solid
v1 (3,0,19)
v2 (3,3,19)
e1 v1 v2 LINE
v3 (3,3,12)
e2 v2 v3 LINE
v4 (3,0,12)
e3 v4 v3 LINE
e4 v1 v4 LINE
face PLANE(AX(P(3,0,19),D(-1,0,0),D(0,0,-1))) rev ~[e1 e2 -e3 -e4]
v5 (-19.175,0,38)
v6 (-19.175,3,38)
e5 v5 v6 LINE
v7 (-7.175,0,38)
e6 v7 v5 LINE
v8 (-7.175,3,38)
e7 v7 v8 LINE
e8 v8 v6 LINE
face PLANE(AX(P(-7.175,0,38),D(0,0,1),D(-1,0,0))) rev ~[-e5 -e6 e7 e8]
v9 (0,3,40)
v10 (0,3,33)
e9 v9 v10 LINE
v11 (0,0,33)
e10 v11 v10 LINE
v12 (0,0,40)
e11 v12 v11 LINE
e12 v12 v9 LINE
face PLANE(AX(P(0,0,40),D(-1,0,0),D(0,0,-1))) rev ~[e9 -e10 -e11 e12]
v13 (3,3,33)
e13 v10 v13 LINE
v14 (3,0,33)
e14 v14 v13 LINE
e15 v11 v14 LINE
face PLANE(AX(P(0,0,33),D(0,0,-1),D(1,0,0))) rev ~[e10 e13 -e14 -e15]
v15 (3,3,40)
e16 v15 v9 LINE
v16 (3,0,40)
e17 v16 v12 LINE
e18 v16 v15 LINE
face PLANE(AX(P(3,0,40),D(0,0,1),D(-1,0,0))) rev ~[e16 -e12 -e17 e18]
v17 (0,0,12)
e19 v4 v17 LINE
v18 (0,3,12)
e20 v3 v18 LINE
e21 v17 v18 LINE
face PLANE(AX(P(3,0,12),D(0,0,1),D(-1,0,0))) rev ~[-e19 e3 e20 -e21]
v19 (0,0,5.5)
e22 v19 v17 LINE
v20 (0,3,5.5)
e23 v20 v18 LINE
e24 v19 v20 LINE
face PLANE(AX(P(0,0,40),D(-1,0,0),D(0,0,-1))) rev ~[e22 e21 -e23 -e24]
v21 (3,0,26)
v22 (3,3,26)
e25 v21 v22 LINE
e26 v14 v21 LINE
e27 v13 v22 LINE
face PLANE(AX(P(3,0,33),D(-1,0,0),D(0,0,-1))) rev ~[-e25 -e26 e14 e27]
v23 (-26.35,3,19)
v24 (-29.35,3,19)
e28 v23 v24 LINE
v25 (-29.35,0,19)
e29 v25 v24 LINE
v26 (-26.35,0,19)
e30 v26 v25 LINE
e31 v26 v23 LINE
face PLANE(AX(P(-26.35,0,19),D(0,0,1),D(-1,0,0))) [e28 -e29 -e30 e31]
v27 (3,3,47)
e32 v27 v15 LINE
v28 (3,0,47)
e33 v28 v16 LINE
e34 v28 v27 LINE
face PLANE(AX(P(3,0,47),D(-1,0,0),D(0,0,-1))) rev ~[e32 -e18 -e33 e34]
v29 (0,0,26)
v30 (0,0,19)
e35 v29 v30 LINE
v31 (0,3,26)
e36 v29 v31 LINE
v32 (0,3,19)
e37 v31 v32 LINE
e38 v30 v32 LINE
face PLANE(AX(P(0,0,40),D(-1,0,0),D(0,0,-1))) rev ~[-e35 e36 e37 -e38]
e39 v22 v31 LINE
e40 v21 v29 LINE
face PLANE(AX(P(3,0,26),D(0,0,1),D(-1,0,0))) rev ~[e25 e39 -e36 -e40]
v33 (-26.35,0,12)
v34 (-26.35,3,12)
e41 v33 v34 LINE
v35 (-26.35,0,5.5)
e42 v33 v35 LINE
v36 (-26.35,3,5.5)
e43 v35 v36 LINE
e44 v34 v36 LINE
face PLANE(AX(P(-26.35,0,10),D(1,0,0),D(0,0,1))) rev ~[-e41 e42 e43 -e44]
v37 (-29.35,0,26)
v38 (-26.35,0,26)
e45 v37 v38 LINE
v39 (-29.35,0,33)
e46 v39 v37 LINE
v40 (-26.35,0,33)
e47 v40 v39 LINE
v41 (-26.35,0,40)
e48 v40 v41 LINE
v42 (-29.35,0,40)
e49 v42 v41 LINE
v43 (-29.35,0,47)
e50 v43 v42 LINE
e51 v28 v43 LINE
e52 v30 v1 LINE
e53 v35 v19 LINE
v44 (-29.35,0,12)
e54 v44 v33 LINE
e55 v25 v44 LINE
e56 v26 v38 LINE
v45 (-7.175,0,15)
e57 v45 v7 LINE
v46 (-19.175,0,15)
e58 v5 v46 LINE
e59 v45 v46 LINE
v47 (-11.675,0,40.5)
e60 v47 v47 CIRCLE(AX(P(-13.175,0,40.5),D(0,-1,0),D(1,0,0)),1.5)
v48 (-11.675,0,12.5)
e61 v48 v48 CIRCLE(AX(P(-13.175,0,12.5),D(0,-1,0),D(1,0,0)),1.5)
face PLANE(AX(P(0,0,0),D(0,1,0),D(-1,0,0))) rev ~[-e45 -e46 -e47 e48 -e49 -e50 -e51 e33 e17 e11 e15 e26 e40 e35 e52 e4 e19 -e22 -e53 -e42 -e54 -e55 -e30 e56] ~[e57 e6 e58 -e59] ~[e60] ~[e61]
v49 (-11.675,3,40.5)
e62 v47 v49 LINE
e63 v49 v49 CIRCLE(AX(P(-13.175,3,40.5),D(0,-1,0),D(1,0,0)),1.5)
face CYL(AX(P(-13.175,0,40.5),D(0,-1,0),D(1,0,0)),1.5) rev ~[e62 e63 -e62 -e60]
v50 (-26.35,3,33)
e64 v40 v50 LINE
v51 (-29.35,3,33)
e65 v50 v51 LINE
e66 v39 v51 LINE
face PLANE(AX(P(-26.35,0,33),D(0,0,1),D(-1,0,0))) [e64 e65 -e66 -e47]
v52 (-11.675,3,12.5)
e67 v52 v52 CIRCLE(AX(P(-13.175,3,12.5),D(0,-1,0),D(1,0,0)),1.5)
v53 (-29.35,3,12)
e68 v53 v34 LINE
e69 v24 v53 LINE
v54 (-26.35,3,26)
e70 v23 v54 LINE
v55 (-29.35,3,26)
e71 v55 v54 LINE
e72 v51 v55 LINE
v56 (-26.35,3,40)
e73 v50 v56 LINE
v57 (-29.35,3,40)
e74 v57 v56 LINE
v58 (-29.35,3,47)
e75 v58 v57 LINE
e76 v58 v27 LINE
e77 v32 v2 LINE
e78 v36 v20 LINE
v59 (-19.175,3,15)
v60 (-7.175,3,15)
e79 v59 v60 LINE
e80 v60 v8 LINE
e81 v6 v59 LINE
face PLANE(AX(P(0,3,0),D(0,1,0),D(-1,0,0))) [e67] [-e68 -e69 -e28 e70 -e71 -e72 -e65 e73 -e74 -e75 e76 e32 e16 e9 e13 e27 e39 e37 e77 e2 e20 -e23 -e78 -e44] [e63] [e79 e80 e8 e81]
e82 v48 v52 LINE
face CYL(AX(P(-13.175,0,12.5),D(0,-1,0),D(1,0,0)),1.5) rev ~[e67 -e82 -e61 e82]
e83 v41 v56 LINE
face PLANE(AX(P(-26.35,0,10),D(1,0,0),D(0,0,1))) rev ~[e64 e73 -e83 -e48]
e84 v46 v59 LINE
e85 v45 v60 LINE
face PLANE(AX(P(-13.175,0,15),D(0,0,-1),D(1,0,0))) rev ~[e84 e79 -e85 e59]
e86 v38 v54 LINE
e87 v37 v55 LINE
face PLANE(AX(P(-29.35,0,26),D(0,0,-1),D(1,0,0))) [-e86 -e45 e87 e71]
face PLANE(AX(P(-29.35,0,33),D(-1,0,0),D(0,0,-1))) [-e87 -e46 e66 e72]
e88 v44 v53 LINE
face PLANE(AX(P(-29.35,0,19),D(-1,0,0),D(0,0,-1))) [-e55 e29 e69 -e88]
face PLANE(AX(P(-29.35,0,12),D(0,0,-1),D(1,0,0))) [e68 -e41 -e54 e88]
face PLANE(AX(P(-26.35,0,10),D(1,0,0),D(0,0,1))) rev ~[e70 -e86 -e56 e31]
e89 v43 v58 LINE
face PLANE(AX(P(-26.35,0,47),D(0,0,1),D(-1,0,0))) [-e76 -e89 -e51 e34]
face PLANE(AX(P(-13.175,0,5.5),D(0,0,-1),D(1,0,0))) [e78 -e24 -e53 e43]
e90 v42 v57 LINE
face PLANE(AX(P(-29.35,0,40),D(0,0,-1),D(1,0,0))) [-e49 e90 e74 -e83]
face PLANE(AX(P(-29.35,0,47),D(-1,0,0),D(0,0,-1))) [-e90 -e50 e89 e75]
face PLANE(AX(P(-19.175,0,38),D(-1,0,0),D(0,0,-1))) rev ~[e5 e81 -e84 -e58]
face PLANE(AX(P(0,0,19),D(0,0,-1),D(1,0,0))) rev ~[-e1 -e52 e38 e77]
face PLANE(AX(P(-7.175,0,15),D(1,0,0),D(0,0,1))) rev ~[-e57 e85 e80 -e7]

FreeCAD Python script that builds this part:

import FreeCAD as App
import Part
import Sketcher
Q = App.Units.Quantity

doc = App.newDocument("Part")
body = doc.addObject("PartDesign::Body", "Body")

# Sketch on XZ plane
sketch1 = doc.addObject("Sketcher::SketchObject", "Sketch")
body.addObject(sketch1)
sketch1.AttachmentSupport = (doc.XZ_Plane, [""])
sketch1.MapMode = "FlatFace"
sketch1.addGeometry(Part.LineSegment(App.Vector(3, 0, 0), App.Vector(-29.35, 0, 0)), False)
sketch1.addGeometry(Part.LineSegment(App.Vector(-29.35, 0, 0), App.Vector(-29.35, 10, 0)), False)
sketch1.addGeometry(Part.LineSegment(App.Vector(-29.35, 10, 0), App.Vector(3, 10, 0)), False)
sketch1.addGeometry(Part.LineSegment(App.Vector(3, 10, 0), App.Vector(3, 0, 0)), False)
sketch1.addConstraint(Sketcher.Constraint("Coincident", 0, 2, 1, 1))
sketch1.addConstraint(Sketcher.Constraint("Coincident", 1, 2, 2, 1))
sketch1.addConstraint(Sketcher.Constraint("Coincident", 2, 2, 3, 1))
sketch1.addConstraint(Sketcher.Constraint("Coincident", 3, 2, 0, 1))
sketch1.addConstraint(Sketcher.Constraint("Horizontal", 0))
sketch1.addConstraint(Sketcher.Constraint("Vertical", 1))
sketch1.addConstraint(Sketcher.Constraint("Horizontal", 2))
sketch1.addConstraint(Sketcher.Constraint("Vertical", 3))
sketch1.addConstraint(Sketcher.Constraint("PointOnObject", 0, 2, -1))
sketch1.addConstraint(Sketcher.Constraint("DistanceY", 1, 1, 1, 2, Q("10 mm")))
sketch1.addConstraint(Sketcher.Constraint("DistanceX", -1, 1, 2, 2, Q("3 mm")))
sketch1.addConstraint(Sketcher.Constraint("DistanceX", 0, 2, 0, 1, Q("32.35 mm")))
pad1 = doc.addObject("PartDesign::Pad", "Pad")
body.addObject(pad1)
pad1.Profile = sketch1
pad1.Length = 3
pad1.Reversed = True

# Sketch on XZ plane
sketch2 = doc.addObject("Sketcher::SketchObject", "Sketch001")
body.addObject(sketch2)
sketch2.AttachmentSupport = (doc.XZ_Plane, [""])
sketch2.MapMode = "FlatFace"
sketch2.addGeometry(Part.LineSegment(App.Vector(-26.35, 40, 0), App.Vector(-26.35, 10, 0)), False)
sketch2.addGeometry(Part.LineSegment(App.Vector(-26.35, 10, 0), App.Vector(0, 10, 0)), False)
sketch2.addGeometry(Part.LineSegment(App.Vector(0, 10, 0), App.Vector(0, 40, 0)), False)
sketch2.addGeometry(Part.LineSegment(App.Vector(0, 40, 0), App.Vector(3, 40, 0)), False)
sketch2.addGeometry(Part.LineSegment(App.Vector(3, 40, 0), App.Vector(3, 47, 0)), False)
sketch2.addGeometry(Part.LineSegment(App.Vector(3, 47, 0), App.Vector(-29.35, 47, 0)), False)
sketch2.addGeometry(Part.LineSegment(App.Vector(-29.35, 47, 0), App.Vector(-29.35, 40, 0)), False)
sketch2.addGeometry(Part.LineSegment(App.Vector(-29.35, 40, 0), App.Vector(-26.35, 40, 0)), False)
sketch2.addGeometry(Part.Circle(App.Vector(-13.175, 12.5, 0), App.Vector(0, 0, 1), 1.5), False)
sketch2.addGeometry(Part.LineSegment(App.Vector(-7.175, 15, 0), App.Vector(-19.175, 15, 0)), False)
sketch2.addGeometry(Part.LineSegment(App.Vector(-19.175, 15, 0), App.Vector(-19.175, 38, 0)), False)
sketch2.addGeometry(Part.LineSegment(App.Vector(-19.175, 38, 0), App.Vector(-7.175, 38, 0)), False)
sketch2.addGeometry(Part.LineSegment(App.Vector(-7.175, 38, 0), App.Vector(-7.175, 15, 0)), False)
sketch2.addGeometry(Part.Circle(App.Vector(-13.175, 40.5, 0), App.Vector(0, 0, 1), 1.5), False)
sketch2.addConstraint(Sketcher.Constraint("Coincident", 0, 2, 1, 1))
sketch2.addConstraint(Sketcher.Constraint("Coincident", 1, 2, 2, 1))
sketch2.addConstraint(Sketcher.Constraint("Coincident", 2, 2, 3, 1))
sketch2.addConstraint(Sketcher.Constraint("Coincident", 3, 2, 4, 1))
sketch2.addConstraint(Sketcher.Constraint("Coincident", 4, 2, 5, 1))
sketch2.addConstraint(Sketcher.Constraint("Coincident", 5, 2, 6, 1))
sketch2.addConstraint(Sketcher.Constraint("Coincident", 6, 2, 7, 1))
sketch2.addConstraint(Sketcher.Constraint("Coincident", 7, 2, 0, 1))
sketch2.addConstraint(Sketcher.Constraint("Coincident", 9, 2, 10, 1))
sketch2.addConstraint(Sketcher.Constraint("Coincident", 10, 2, 11, 1))
sketch2.addConstraint(Sketcher.Constraint("Coincident", 11, 2, 12, 1))
sketch2.addConstraint(Sketcher.Constraint("Coincident", 12, 2, 9, 1))
sketch2.addConstraint(Sketcher.Constraint("Vertical", 0))
sketch2.addConstraint(Sketcher.Constraint("Horizontal", 1))
sketch2.addConstraint(Sketcher.Constraint("Vertical", 2))
sketch2.addConstraint(Sketcher.Constraint("Horizontal", 3))
sketch2.addConstraint(Sketcher.Constraint("Vertical", 4))
sketch2.addConstraint(Sketcher.Constraint("Horizontal", 5))
sketch2.addConstraint(Sketcher.Constraint("Vertical", 6))
sketch2.addConstraint(Sketcher.Constraint("Horizontal", 7))
sketch2.addConstraint(Sketcher.Constraint("Horizontal", 9))
sketch2.addConstraint(Sketcher.Constraint("Vertical", 10))
sketch2.addConstraint(Sketcher.Constraint("Horizontal", 11))
sketch2.addConstraint(Sketcher.Constraint("Vertical", 12))
sketch2.addConstraint(Sketcher.Constraint("Equal", 8, 13))
sketch2.addConstraint(Sketcher.Constraint("PointOnObject", 1, 2, -2))
sketch2.addConstraint(Sketcher.Constraint("Horizontal", 3, 2, 6, 2))
sketch2.addConstraint(Sketcher.Constraint("Vertical", 8, 3, 13, 3))
sketch2.addConstraint(Sketcher.Constraint("Equal", 3, 7))
sketch2.addConstraint(Sketcher.Constraint("Diameter", 8, Q("3 mm")))
sketch2.addConstraint(Sketcher.Constraint("DistanceX", 3, 1, 3, 2, Q("3 mm")))
sketch2.addConstraint(Sketcher.Constraint("DistanceY", 4, 1, 4, 2, Q("7 mm")))
sketch2.addConstraint(Sketcher.Constraint("DistanceX", 9, 2, 9, 1, Q("12 mm")))
sketch2.addConstraint(Sketcher.Constraint("DistanceY", 0, 2, 0, 1, Q("30 mm")))
sketch2.addConstraint(Sketcher.Constraint("DistanceY", 10, 1, 10, 2, Q("23 mm")))
sketch2.addConstraint(Sketcher.Constraint("DistanceY", -1, 1, 0, 2, Q("10 mm")))
sketch2.addConstraint(Sketcher.Constraint("DistanceY", -1, 1, 9, 2, Q("15 mm")))
sketch2.addConstraint(Sketcher.Constraint("DistanceY", 8, 3, 13, 3, Q("28 mm")))
sketch2.addConstraint(Sketcher.Constraint("DistanceX", 9, 2, 8, 3, Q("6 mm")))
sketch2.addConstraint(Sketcher.Constraint("DistanceX", 1, 1, 1, 2, Q("26.35 mm")))
sketch2.addConstraint(Sketcher.Constraint("DistanceY", -1, 1, 8, 3, Q("12.5 mm")))
sketch2.addConstraint(Sketcher.Constraint("DistanceX", 8, 3, -1, 1, Q("13.175 mm")))
pad2 = doc.addObject("PartDesign::Pad", "Pad001")
body.addObject(pad2)
pad2.Profile = sketch2
pad2.Length = 3
pad2.Reversed = True

# Sketch on XZ plane
sketch3 = doc.addObject("Sketcher::SketchObject", "Sketch002")
body.addObject(sketch3)
sketch3.AttachmentSupport = (doc.XZ_Plane, [""])
sketch3.MapMode = "FlatFace"
sketch3.addGeometry(Part.LineSegment(App.Vector(3, 33, 0), App.Vector(0, 33, 0)), False)
sketch3.addGeometry(Part.LineSegment(App.Vector(0, 33, 0), App.Vector(0, 26, 0)), False)
sketch3.addGeometry(Part.LineSegment(App.Vector(0, 26, 0), App.Vector(3, 26, 0)), False)
sketch3.addGeometry(Part.LineSegment(App.Vector(3, 26, 0), App.Vector(3, 33, 0)), False)
sketch3.addGeometry(Part.LineSegment(App.Vector(-26.35, 26, 0), App.Vector(-26.35, 33, 0)), False)
sketch3.addGeometry(Part.LineSegment(App.Vector(-26.35, 33, 0), App.Vector(-29.35, 33, 0)), False)
sketch3.addGeometry(Part.LineSegment(App.Vector(-29.35, 33, 0), App.Vector(-29.35, 26, 0)), False)
sketch3.addGeometry(Part.LineSegment(App.Vector(-29.35, 26, 0), App.Vector(-26.35, 26, 0)), False)
sketch3.addGeometry(Part.LineSegment(App.Vector(-26.35, 12, 0), App.Vector(-26.35, 19, 0)), False)
sketch3.addGeometry(Part.LineSegment(App.Vector(-26.35, 19, 0), App.Vector(-29.35, 19, 0)), False)
sketch3.addGeometry(Part.LineSegment(App.Vector(-29.35, 19, 0), App.Vector(-29.35, 12, 0)), False)
sketch3.addGeometry(Part.LineSegment(App.Vector(-29.35, 12, 0), App.Vector(-26.35, 12, 0)), False)
sketch3.addGeometry(Part.LineSegment(App.Vector(3, 19, 0), App.Vector(0, 19, 0)), False)
sketch3.addGeometry(Part.LineSegment(App.Vector(0, 19, 0), App.Vector(0, 12, 0)), False)
sketch3.addGeometry(Part.LineSegment(App.Vector(0, 12, 0), App.Vector(3, 12, 0)), False)
sketch3.addGeometry(Part.LineSegment(App.Vector(3, 12, 0), App.Vector(3, 19, 0)), False)
sketch3.addConstraint(Sketcher.Constraint("Coincident", 0, 2, 1, 1))
sketch3.addConstraint(Sketcher.Constraint("Coincident", 1, 2, 2, 1))
sketch3.addConstraint(Sketcher.Constraint("Coincident", 2, 2, 3, 1))
sketch3.addConstraint(Sketcher.Constraint("Coincident", 3, 2, 0, 1))
sketch3.addConstraint(Sketcher.Constraint("Coincident", 4, 2, 5, 1))
sketch3.addConstraint(Sketcher.Constraint("Coincident", 5, 2, 6, 1))
sketch3.addConstraint(Sketcher.Constraint("Coincident", 6, 2, 7, 1))
sketch3.addConstraint(Sketcher.Constraint("Coincident", 7, 2, 4, 1))
sketch3.addConstraint(Sketcher.Constraint("Coincident", 8, 2, 9, 1))
sketch3.addConstraint(Sketcher.Constraint("Coincident", 9, 2, 10, 1))
sketch3.addConstraint(Sketcher.Constraint("Coincident", 10, 2, 11, 1))
sketch3.addConstraint(Sketcher.Constraint("Coincident", 11, 2, 8, 1))
sketch3.addConstraint(Sketcher.Constraint("Coincident", 12, 2, 13, 1))
sketch3.addConstraint(Sketcher.Constraint("Coincident", 13, 2, 14, 1))
sketch3.addConstraint(Sketcher.Constraint("Coincident", 14, 2, 15, 1))
sketch3.addConstraint(Sketcher.Constraint("Coincident", 15, 2, 12, 1))
sketch3.addConstraint(Sketcher.Constraint("Horizontal", 0))
sketch3.addConstraint(Sketcher.Constraint("Vertical", 1))
sketch3.addConstraint(Sketcher.Constraint("Horizontal", 2))
sketch3.addConstraint(Sketcher.Constraint("Vertical", 3))
sketch3.addConstraint(Sketcher.Constraint("Vertical", 4))
sketch3.addConstraint(Sketcher.Constraint("Horizontal", 5))
sketch3.addConstraint(Sketcher.Constraint("Vertical", 6))
sketch3.addConstraint(Sketcher.Constraint("Horizontal", 7))
sketch3.addConstraint(Sketcher.Constraint("Vertical", 8))
sketch3.addConstraint(Sketcher.Constraint("Horizontal", 9))
sketch3.addConstraint(Sketcher.Constraint("Vertical", 10))
sketch3.addConstraint(Sketcher.Constraint("Horizontal", 11))
sketch3.addConstraint(Sketcher.Constraint("Horizontal", 12))
sketch3.addConstraint(Sketcher.Constraint("Vertical", 13))
sketch3.addConstraint(Sketcher.Constraint("Horizontal", 14))
sketch3.addConstraint(Sketcher.Constraint("Vertical", 15))
sketch3.addConstraint(Sketcher.Constraint("PointOnObject", 0, 2, -2))
sketch3.addConstraint(Sketcher.Constraint("PointOnObject", 12, 2, -2))
sketch3.addConstraint(Sketcher.Constraint("Horizontal", 3, 2, 4, 2))
sketch3.addConstraint(Sketcher.Constraint("Horizontal", 2, 2, 6, 2))
sketch3.addConstraint(Sketcher.Constraint("Horizontal", 9, 2, 12, 2))
sketch3.addConstraint(Sketcher.Constraint("Horizontal", 11, 2, 13, 2))
sketch3.addConstraint(Sketcher.Constraint("Vertical", 7, 2, 8, 2))
sketch3.addConstraint(Sketcher.Constraint("Vertical", 6, 2, 9, 2))
sketch3.addConstraint(Sketcher.Constraint("Vertical", 3, 2, 14, 2))
sketch3.addConstraint(Sketcher.Constraint("Equal", 2, 5))
sketch3.addConstraint(Sketcher.Constraint("Equal", 6, 8))
sketch3.addConstraint(Sketcher.Constraint("DistanceX", 0, 2, 0, 1, Q("3 mm")))
sketch3.addConstraint(Sketcher.Constraint("DistanceY", 1, 2, 1, 1, Q("7 mm")))
sketch3.addConstraint(Sketcher.Constraint("DistanceY", -1, 1, 0, 2, Q("33 mm")))
sketch3.addConstraint(Sketcher.Constraint("DistanceY", -1, 1, 8, 2, Q("19 mm")))
sketch3.addConstraint(Sketcher.Constraint("DistanceX", 4, 2, -1, 1, Q("26.35 mm")))
pad3 = doc.addObject("PartDesign::Pad", "Pad002")
body.addObject(pad3)
pad3.Profile = sketch3
pad3.Length = 3
pad3.Reversed = True

# Sketch on XZ plane
sketch4 = doc.addObject("Sketcher::SketchObject", "Sketch003")
body.addObject(sketch4)
sketch4.AttachmentSupport = (doc.XZ_Plane, [""])
sketch4.MapMode = "FlatFace"
sketch4.addGeometry(Part.LineSegment(App.Vector(3, 5.5, 0), App.Vector(-29.35, 5.5, 0)), False)
sketch4.addGeometry(Part.LineSegment(App.Vector(-29.35, 5.5, 0), App.Vector(-29.35, 0, 0)), False)
sketch4.addGeometry(Part.LineSegment(App.Vector(-29.35, 0, 0), App.Vector(3, 0, 0)), False)
sketch4.addGeometry(Part.LineSegment(App.Vector(3, 0, 0), App.Vector(3, 5.5, 0)), False)
sketch4.addConstraint(Sketcher.Constraint("Coincident", 0, 2, 1, 1))
sketch4.addConstraint(Sketcher.Constraint("Coincident", 1, 2, 2, 1))
sketch4.addConstraint(Sketcher.Constraint("Coincident", 2, 2, 3, 1))
sketch4.addConstraint(Sketcher.Constraint("Coincident", 3, 2, 0, 1))
sketch4.addConstraint(Sketcher.Constraint("Horizontal", 0))
sketch4.addConstraint(Sketcher.Constraint("Vertical", 1))
sketch4.addConstraint(Sketcher.Constraint("Horizontal", 2))
sketch4.addConstraint(Sketcher.Constraint("Vertical", 3))
sketch4.addConstraint(Sketcher.Constraint("PointOnObject", 1, 2, -1))
sketch4.addConstraint(Sketcher.Constraint("DistanceY", 1, 2, 1, 1, Q("5.5 mm")))
sketch4.addConstraint(Sketcher.Constraint("DistanceX", -1, 1, 2, 2, Q("3 mm")))
sketch4.addConstraint(Sketcher.Constraint("DistanceX", 0, 2, 0, 1, Q("32.35 mm")))
pocket1 = doc.addObject("PartDesign::Pocket", "Pocket")
body.addObject(pocket1)
pocket1.Profile = sketch4
pocket1.Length = 3

# Sketch on XZ plane
sketch5 = doc.addObject("Sketcher::SketchObject", "Sketch004")
body.addObject(sketch5)
sketch5.AttachmentSupport = (doc.XZ_Plane, [""])
sketch5.MapMode = "FlatFace"
sketch5.addGeometry(Part.LineSegment(App.Vector(-26.35, 5.5, 0), App.Vector(-26.35, 10, 0)), False)
sketch5.addGeometry(Part.LineSegment(App.Vector(-26.35, 10, 0), App.Vector(-29.35, 10, 0)), False)
sketch5.addGeometry(Part.LineSegment(App.Vector(-29.35, 10, 0), App.Vector(-29.35, 5.5, 0)), False)
sketch5.addGeometry(Part.LineSegment(App.Vector(-29.35, 5.5, 0), App.Vector(-26.35, 5.5, 0)), False)
sketch5.addGeometry(Part.LineSegment(App.Vector(3, 10, 0), App.Vector(0, 10, 0)), False)
sketch5.addGeometry(Part.LineSegment(App.Vector(0, 10, 0), App.Vector(0, 5.5, 0)), False)
sketch5.addGeometry(Part.LineSegment(App.Vector(0, 5.5, 0), App.Vector(3, 5.5, 0)), False)
sketch5.addGeometry(Part.LineSegment(App.Vector(3, 5.5, 0), App.Vector(3, 10, 0)), False)
sketch5.addConstraint(Sketcher.Constraint("Coincident", 0, 2, 1, 1))
sketch5.addConstraint(Sketcher.Constraint("Coincident", 1, 2, 2, 1))
sketch5.addConstraint(Sketcher.Constraint("Coincident", 2, 2, 3, 1))
sketch5.addConstraint(Sketcher.Constraint("Coincident", 3, 2, 0, 1))
sketch5.addConstraint(Sketcher.Constraint("Coincident", 4, 2, 5, 1))
sketch5.addConstraint(Sketcher.Constraint("Coincident", 5, 2, 6, 1))
sketch5.addConstraint(Sketcher.Constraint("Coincident", 6, 2, 7, 1))
sketch5.addConstraint(Sketcher.Constraint("Coincident", 7, 2, 4, 1))
sketch5.addConstraint(Sketcher.Constraint("Vertical", 0))
sketch5.addConstraint(Sketcher.Constraint("Horizontal", 1))
sketch5.addConstraint(Sketcher.Constraint("Vertical", 2))
sketch5.addConstraint(Sketcher.Constraint("Horizontal", 3))
sketch5.addConstraint(Sketcher.Constraint("Horizontal", 4))
sketch5.addConstraint(Sketcher.Constraint("Vertical", 5))
sketch5.addConstraint(Sketcher.Constraint("Horizontal", 6))
sketch5.addConstraint(Sketcher.Constraint("Vertical", 7))
sketch5.addConstraint(Sketcher.Constraint("PointOnObject", 4, 2, -2))
sketch5.addConstraint(Sketcher.Constraint("Horizontal", 1, 2, 4, 2))
sketch5.addConstraint(Sketcher.Constraint("Horizontal", 3, 2, 5, 2))
sketch5.addConstraint(Sketcher.Constraint("Equal", 3, 4))
sketch5.addConstraint(Sketcher.Constraint("DistanceX", 1, 2, 1, 1, Q("3 mm")))
sketch5.addConstraint(Sketcher.Constraint("DistanceY", 0, 1, 0, 2, Q("4.5 mm")))
sketch5.addConstraint(Sketcher.Constraint("DistanceY", -1, 1, 0, 2, Q("10 mm")))
sketch5.addConstraint(Sketcher.Constraint("DistanceX", 0, 2, -1, 1, Q("26.35 mm")))
pocket2 = doc.addObject("PartDesign::Pocket", "Pocket001")
body.addObject(pocket2)
pocket2.Profile = sketch5
pocket2.Length = 3

doc.recompute()
